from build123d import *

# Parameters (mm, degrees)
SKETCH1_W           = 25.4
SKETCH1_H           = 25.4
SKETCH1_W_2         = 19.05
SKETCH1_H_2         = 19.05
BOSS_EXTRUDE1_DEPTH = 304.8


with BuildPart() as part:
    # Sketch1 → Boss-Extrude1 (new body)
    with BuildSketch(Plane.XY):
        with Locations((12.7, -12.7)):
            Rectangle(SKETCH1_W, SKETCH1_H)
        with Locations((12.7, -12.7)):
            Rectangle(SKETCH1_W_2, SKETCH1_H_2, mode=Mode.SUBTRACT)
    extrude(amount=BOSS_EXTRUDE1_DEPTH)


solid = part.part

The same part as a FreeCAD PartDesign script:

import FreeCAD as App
import Part
import Sketcher

V = App.Vector
Q = App.Units.Quantity

doc = App.newDocument("Part")
params = doc.addObject("Spreadsheet::Sheet", "Params")
for row, (alias, value) in enumerate([
    ("sketch1_width", "1 in"),
    ("sketch1_width2", "0.75 in"),
    ("pad1_length", "12 in"),
], start=1):
    params.set(f"A{row}", alias)
    params.set(f"B{row}", "=" + value)
    params.setAlias(f"B{row}", alias)

body = doc.addObject("PartDesign::Body", "Body")

sketch1 = body.newObject("Sketcher::SketchObject", "Sketch")
sketch1.AttachmentSupport = (doc.getObject("XY_Plane"), [""])
sketch1.MapMode = "FlatFace"
sketch1.addGeometry(Part.LineSegment(V(0, 0, 0), V(0, -25, 0)), False)
sketch1.addGeometry(Part.LineSegment(V(0, -25, 0), V(25, -25, 0)), False)
sketch1.addGeometry(Part.LineSegment(V(25, -25, 0), V(25, 0, 0)), False)
sketch1.addGeometry(Part.LineSegment(V(25, 0, 0), V(0, 0, 0)), False)
sketch1.addGeometry(Part.LineSegment(V(22, -22, 0), V(3, -22, 0)), False)
sketch1.addGeometry(Part.LineSegment(V(3, -22, 0), V(3, -3, 0)), False)
sketch1.addGeometry(Part.LineSegment(V(3, -3, 0), V(22, -3, 0)), False)
sketch1.addGeometry(Part.LineSegment(V(22, -3, 0), V(22, -22, 0)), False)
sketch1.addConstraint(Sketcher.Constraint("Coincident", 0, 2, 1, 1))
sketch1.addConstraint(Sketcher.Constraint("Coincident", 1, 2, 2, 1))
sketch1.addConstraint(Sketcher.Constraint("Coincident", 2, 2, 3, 1))
sketch1.addConstraint(Sketcher.Constraint("Coincident", 3, 2, 0, 1))
sketch1.addConstraint(Sketcher.Constraint("Coincident", 4, 2, 5, 1))
sketch1.addConstraint(Sketcher.Constraint("Coincident", 5, 2, 6, 1))
sketch1.addConstraint(Sketcher.Constraint("Coincident", 6, 2, 7, 1))
sketch1.addConstraint(Sketcher.Constraint("Coincident", 7, 2, 4, 1))
sketch1.addConstraint(Sketcher.Constraint("Vertical", 0))
sketch1.addConstraint(Sketcher.Constraint("Horizontal", 1))
sketch1.addConstraint(Sketcher.Constraint("Vertical", 2))
sketch1.addConstraint(Sketcher.Constraint("Horizontal", 3))
sketch1.addConstraint(Sketcher.Constraint("Horizontal", 4))
sketch1.addConstraint(Sketcher.Constraint("Vertical", 5))
sketch1.addConstraint(Sketcher.Constraint("Horizontal", 6))
sketch1.addConstraint(Sketcher.Constraint("Vertical", 7))
sketch1.addConstraint(Sketcher.Constraint("Coincident", 3, 2, -1, 1))
sketch1.addConstraint(Sketcher.Constraint("Equal", 3, 0))
sketch1.addConstraint(Sketcher.Constraint("Equal", 6, 5))
sketch1.addConstraint(Sketcher.Constraint("DistanceX", 1, 1, 1, 2, Q("1 in")))
sketch1.addConstraint(Sketcher.Constraint("DistanceX", 4, 2, 4, 1, Q("0.75 in")))
sketch1.addConstraint(Sketcher.Constraint("DistanceX", -1, 1, 4, 2, Q("0.125 in")))
sketch1.addConstraint(Sketcher.Constraint("DistanceY", 4, 2, -1, 1, Q("0.875 in")))
sketch1.setExpression("Constraints[19]", "Params.sketch1_width")
sketch1.setExpression("Constraints[20]", "Params.sketch1_width2")
pad1 = body.newObject("PartDesign::Pad", "Pad")
pad1.Profile = sketch1
pad1.setExpression("Length", "Params.pad1_length")

doc.recompute()
